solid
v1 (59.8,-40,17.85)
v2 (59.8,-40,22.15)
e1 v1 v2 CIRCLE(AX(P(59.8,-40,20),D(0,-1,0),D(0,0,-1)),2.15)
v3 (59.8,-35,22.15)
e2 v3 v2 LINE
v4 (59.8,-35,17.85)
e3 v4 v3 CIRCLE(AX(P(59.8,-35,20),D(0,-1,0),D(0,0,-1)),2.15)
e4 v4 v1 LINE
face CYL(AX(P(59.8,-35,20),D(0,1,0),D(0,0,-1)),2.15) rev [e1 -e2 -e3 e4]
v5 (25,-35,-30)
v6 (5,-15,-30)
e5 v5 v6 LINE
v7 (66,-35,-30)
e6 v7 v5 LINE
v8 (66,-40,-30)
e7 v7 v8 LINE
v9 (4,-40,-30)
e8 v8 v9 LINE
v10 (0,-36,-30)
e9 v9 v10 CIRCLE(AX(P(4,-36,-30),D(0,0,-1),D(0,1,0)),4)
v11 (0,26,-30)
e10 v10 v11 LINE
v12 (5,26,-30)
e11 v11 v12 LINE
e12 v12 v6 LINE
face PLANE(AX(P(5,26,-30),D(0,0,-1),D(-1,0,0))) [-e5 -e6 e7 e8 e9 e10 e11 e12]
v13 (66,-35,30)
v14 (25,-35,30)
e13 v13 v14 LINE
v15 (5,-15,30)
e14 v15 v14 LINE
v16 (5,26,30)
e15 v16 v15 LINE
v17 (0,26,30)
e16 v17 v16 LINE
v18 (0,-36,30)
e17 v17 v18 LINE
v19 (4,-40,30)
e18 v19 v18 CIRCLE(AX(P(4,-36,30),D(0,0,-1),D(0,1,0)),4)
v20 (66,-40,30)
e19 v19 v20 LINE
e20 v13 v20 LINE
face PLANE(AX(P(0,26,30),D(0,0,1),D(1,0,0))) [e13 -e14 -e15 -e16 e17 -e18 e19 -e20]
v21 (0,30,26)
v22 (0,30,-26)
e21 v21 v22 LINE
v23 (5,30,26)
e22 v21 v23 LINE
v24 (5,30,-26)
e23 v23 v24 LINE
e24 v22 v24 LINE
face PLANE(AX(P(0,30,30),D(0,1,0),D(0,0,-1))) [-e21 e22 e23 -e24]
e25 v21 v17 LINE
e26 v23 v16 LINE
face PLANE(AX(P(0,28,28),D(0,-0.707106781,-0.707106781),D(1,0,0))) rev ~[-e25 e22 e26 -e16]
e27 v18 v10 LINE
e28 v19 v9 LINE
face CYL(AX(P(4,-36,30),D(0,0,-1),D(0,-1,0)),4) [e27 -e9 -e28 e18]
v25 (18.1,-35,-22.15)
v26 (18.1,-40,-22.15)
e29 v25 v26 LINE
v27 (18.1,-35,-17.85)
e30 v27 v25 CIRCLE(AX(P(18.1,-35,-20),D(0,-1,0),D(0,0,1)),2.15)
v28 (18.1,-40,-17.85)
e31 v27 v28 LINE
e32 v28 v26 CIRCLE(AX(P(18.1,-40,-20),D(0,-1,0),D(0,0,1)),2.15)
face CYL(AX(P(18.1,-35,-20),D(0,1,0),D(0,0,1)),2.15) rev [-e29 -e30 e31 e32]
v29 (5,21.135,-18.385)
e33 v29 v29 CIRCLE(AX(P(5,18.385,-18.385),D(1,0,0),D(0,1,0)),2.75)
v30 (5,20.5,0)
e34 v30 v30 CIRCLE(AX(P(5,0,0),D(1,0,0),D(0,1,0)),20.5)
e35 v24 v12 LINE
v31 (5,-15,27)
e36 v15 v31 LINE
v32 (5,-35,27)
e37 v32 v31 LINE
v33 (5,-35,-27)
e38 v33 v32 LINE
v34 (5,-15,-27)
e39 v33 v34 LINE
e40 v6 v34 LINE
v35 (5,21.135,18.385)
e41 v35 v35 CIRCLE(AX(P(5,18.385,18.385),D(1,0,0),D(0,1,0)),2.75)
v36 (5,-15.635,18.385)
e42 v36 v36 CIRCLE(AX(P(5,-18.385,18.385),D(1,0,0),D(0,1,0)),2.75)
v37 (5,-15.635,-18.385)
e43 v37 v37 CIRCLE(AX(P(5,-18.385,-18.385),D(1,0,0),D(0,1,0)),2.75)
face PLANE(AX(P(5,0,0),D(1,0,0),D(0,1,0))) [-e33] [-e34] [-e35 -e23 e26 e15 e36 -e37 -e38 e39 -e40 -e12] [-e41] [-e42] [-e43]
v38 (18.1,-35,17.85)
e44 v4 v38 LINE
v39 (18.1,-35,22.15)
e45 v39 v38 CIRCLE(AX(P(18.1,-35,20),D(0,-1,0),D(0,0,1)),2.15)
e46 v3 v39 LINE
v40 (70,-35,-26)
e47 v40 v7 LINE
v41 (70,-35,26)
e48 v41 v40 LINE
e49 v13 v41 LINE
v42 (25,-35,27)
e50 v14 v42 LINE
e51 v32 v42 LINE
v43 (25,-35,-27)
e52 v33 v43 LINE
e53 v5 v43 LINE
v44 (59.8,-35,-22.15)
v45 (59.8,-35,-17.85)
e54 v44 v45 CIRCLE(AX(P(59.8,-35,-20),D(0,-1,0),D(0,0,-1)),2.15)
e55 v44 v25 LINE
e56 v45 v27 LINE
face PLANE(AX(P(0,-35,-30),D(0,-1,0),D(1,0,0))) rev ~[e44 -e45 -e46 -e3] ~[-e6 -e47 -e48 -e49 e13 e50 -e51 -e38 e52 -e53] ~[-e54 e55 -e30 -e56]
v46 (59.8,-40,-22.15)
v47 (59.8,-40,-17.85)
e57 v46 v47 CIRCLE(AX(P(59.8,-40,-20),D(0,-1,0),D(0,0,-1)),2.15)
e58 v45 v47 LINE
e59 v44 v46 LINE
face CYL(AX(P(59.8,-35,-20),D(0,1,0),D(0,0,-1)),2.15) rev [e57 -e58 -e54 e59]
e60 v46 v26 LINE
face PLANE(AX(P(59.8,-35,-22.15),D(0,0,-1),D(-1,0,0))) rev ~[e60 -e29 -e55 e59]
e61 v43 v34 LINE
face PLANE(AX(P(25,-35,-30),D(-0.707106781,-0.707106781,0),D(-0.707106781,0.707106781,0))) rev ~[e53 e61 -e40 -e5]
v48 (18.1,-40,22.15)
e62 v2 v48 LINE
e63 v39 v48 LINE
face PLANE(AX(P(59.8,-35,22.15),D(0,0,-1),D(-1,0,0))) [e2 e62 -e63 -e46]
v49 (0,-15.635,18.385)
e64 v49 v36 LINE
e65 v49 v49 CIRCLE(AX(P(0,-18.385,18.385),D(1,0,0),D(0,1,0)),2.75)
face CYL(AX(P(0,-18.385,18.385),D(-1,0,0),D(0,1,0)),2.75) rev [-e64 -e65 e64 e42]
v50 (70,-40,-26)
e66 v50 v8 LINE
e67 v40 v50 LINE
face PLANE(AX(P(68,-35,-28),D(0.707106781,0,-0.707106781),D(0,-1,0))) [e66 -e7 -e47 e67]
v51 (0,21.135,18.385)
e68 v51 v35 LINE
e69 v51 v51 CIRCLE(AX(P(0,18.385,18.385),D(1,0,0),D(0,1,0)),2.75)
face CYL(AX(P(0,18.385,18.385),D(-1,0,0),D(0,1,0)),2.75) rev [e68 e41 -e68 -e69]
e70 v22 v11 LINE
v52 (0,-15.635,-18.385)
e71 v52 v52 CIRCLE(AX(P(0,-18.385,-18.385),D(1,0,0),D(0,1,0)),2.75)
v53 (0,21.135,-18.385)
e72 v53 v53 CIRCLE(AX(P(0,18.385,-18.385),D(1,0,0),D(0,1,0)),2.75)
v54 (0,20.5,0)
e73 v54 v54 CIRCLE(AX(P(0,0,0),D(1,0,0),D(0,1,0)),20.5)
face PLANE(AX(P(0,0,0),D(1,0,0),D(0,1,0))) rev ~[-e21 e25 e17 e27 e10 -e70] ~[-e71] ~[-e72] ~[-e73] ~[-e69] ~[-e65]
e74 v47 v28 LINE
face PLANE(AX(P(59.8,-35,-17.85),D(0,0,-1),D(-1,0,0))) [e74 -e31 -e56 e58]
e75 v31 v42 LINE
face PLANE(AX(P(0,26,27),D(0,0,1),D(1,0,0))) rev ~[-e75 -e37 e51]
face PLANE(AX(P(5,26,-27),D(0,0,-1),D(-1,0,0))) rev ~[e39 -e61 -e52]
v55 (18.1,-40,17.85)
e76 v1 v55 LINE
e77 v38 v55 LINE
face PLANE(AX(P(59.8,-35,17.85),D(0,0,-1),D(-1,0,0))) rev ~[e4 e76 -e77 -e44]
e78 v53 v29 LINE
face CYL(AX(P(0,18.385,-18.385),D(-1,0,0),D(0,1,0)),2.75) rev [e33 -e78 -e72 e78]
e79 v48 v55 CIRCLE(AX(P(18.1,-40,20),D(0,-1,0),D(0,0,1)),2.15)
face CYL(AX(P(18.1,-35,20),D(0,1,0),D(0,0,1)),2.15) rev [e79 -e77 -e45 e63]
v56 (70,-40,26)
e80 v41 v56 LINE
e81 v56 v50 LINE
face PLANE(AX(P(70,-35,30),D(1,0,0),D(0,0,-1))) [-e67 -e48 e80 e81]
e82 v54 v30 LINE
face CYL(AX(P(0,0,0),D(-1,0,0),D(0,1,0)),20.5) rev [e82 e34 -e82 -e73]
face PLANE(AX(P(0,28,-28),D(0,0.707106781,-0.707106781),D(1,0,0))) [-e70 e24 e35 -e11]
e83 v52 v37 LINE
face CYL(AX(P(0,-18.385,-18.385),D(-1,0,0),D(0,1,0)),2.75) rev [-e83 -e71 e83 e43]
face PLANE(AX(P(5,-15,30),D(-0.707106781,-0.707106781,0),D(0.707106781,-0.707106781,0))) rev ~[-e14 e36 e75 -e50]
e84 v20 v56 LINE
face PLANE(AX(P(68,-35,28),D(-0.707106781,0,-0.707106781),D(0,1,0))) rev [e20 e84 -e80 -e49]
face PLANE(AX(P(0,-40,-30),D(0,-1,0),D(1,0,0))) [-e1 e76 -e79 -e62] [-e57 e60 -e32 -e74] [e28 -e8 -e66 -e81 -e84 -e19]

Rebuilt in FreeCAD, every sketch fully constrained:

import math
import FreeCAD as App
import Part
import Sketcher
Q = App.Units.Quantity


def edges_at(feature, points):
    """Names of the edges that pass closest to the given points."""
    edges = feature.Shape.Edges
    near = lambda p: min(range(len(edges)), key=lambda i: edges[i].distToShape(Part.Vertex(*p))[0])
    return sorted({f"Edge{near(p) + 1}" for p in points})


def add_polygon(sketch, points):
    """Adds a closed chain of lines whose ends are joined by coincident constraints."""
    first, n = sketch.GeometryCount, len(points)
    for a, b in zip(points, points[1:] + points[:1]):
        sketch.addGeometry(Part.LineSegment(App.Vector(*a, 0), App.Vector(*b, 0)), False)
    for i in range(n):
        sketch.addConstraint(Sketcher.Constraint("Coincident", first + i, 2, first + (i + 1) % n, 1))

doc = App.newDocument("Part")
body = doc.addObject("PartDesign::Body", "Body")

sketch1 = doc.addObject("Sketcher::SketchObject", "Sketch")
body.addObject(sketch1)
sketch1.AttachmentSupport = (doc.YZ_Plane, [""])
sketch1.MapMode = "FlatFace"
add_polygon(sketch1, [(30, -30), (30, 30), (-35, 30), (-35, -30)])
sketch1.addGeometry(Part.Circle(App.Vector(-18.385, -18.385, 0), App.Vector(0, 0, 1), 2.75), False)
sketch1.addGeometry(Part.Circle(App.Vector(18.385, -18.385, 0), App.Vector(0, 0, 1), 2.75), False)
sketch1.addGeometry(Part.Circle(App.Vector(-18.385, 18.385, 0), App.Vector(0, 0, 1), 2.75), False)
sketch1.addGeometry(Part.Circle(App.Vector(0, 0, 0), App.Vector(0, 0, 1), 20.5), False)
sketch1.addGeometry(Part.Circle(App.Vector(18.385, 18.385, 0), App.Vector(0, 0, 1), 2.75), False)
sketch1.addConstraint(Sketcher.Constraint("Vertical", 0))
sketch1.addConstraint(Sketcher.Constraint("Horizontal", 1))
sketch1.addConstraint(Sketcher.Constraint("Vertical", 2))
sketch1.addConstraint(Sketcher.Constraint("Horizontal", 3))
sketch1.addConstraint(Sketcher.Constraint("Coincident", 7, 3, -1, 1))
sketch1.addConstraint(Sketcher.Constraint("Equal", 4, 5))
sketch1.addConstraint(Sketcher.Constraint("Equal", 5, 6))
sketch1.addConstraint(Sketcher.Constraint("Equal", 6, 8))
sketch1.addConstraint(Sketcher.Constraint("Symmetric", 5, 3, 6, 3, -1, 1))
sketch1.addConstraint(Sketcher.Constraint("Symmetric", 4, 3, 8, 3, -1, 1))
sketch1.addConstraint(Sketcher.Constraint("Symmetric", 4, 3, 5, 3, -2))
sketch1.addConstraint(Sketcher.Constraint("Diameter", 7, Q("41 mm")))
sketch1.addConstraint(Sketcher.Constraint("Diameter", 4, Q("5.5 mm")))
sketch1.addConstraint(Sketcher.Constraint("DistanceX", 1, 2, 1, 1, Q("65 mm")))
sketch1.addConstraint(Sketcher.Constraint("DistanceY", 0, 1, 0, 2, Q("60 mm")))
sketch1.addConstraint(Sketcher.Constraint("DistanceX", -1, 1, 0, 2, Q("30 mm")))
sketch1.addConstraint(Sketcher.Constraint("DistanceY", -1, 1, 0, 2, Q("30 mm")))
sketch1.addConstraint(Sketcher.Constraint("DistanceX", 4, 3, 5, 3, Q("36.77 mm")))
sketch1.addConstraint(Sketcher.Constraint("DistanceY", 4, 3, 6, 3, Q("36.77 mm")))
pad1 = doc.addObject("PartDesign::Pad", "Pad")
body.addObject(pad1)
pad1.Profile = sketch1
pad1.Length = 5

sketch2 = doc.addObject("Sketcher::SketchObject", "Sketch001")
body.addObject(sketch2)
sketch2.AttachmentSupport = (doc.XZ_Plane, [""])
sketch2.MapMode = "FlatFace"
sketch2.AttachmentOffset = App.Placement(App.Vector(0, 0, 35), App.Rotation())
add_polygon(sketch2, [(70, 30), (0, 30), (0, -30), (70, -30)])
sketch2.addGeometry(Part.ArcOfCircle(Part.Circle(App.Vector(59.8, -20, 0), App.Vector(0, 0, 1), 2.15), math.radians(-90), math.radians(90)), False)
sketch2.addGeometry(Part.LineSegment(App.Vector(59.8, -22.15, 0), App.Vector(18.1, -22.15, 0)), False)
sketch2.addGeometry(Part.ArcOfCircle(Part.Circle(App.Vector(18.1, -20, 0), App.Vector(0, 0, 1), 2.15), math.radians(90), math.radians(270)), False)
sketch2.addGeometry(Part.LineSegment(App.Vector(18.1, -17.85, 0), App.Vector(59.8, -17.85, 0)), False)
sketch2.addGeometry(Part.ArcOfCircle(Part.Circle(App.Vector(59.8, 20, 0), App.Vector(0, 0, 1), 2.15), math.radians(-90), math.radians(90)), False)
sketch2.addGeometry(Part.LineSegment(App.Vector(59.8, 17.85, 0), App.Vector(18.1, 17.85, 0)), False)
sketch2.addGeometry(Part.ArcOfCircle(Part.Circle(App.Vector(18.1, 20, 0), App.Vector(0, 0, 1), 2.15), math.radians(90), math.radians(270)), False)
sketch2.addGeometry(Part.LineSegment(App.Vector(18.1, 22.15, 0), App.Vector(59.8, 22.15, 0)), False)
sketch2.addConstraint(Sketcher.Constraint("Tangent", 4, 1, 5, 1))
sketch2.addConstraint(Sketcher.Constraint("Tangent", 5, 2, 6, 2))
sketch2.addConstraint(Sketcher.Constraint("Tangent", 6, 1, 7, 1))
sketch2.addConstraint(Sketcher.Constraint("Tangent", 7, 2, 4, 2))
sketch2.addConstraint(Sketcher.Constraint("Tangent", 8, 1, 9, 1))
sketch2.addConstraint(Sketcher.Constraint("Tangent", 9, 2, 10, 2))
sketch2.addConstraint(Sketcher.Constraint("Tangent", 10, 1, 11, 1))
sketch2.addConstraint(Sketcher.Constraint("Tangent", 11, 2, 8, 2))
sketch2.addConstraint(Sketcher.Constraint("Horizontal", 0))
sketch2.addConstraint(Sketcher.Constraint("Vertical", 1))
sketch2.addConstraint(Sketcher.Constraint("Horizontal", 2))
sketch2.addConstraint(Sketcher.Constraint("Vertical", 3))
sketch2.addConstraint(Sketcher.Constraint("Horizontal", 5))
sketch2.addConstraint(Sketcher.Constraint("Horizontal", 7))
sketch2.addConstraint(Sketcher.Constraint("Horizontal", 9))
sketch2.addConstraint(Sketcher.Constraint("Horizontal", 11))
sketch2.addConstraint(Sketcher.Constraint("Equal", 6, 8))
sketch2.addConstraint(Sketcher.Constraint("Symmetric", 0, 2, 1, 2, -1, 1))
sketch2.addConstraint(Sketcher.Constraint("Symmetric", 4, 3, 8, 3, -1))
sketch2.addConstraint(Sketcher.Constraint("Vertical", 6, 3, 10, 3))
sketch2.addConstraint(Sketcher.Constraint("DistanceX", 0, 2, 0, 1, Q("70 mm")))
sketch2.addConstraint(Sketcher.Constraint("DistanceY", 1, 2, 1, 1, Q("60 mm")))
sketch2.addConstraint(Sketcher.Constraint("Radius", 4, Q("2.15 mm")))
sketch2.addConstraint(Sketcher.Constraint("DistanceX", 5, 2, 5, 1, Q("41.7 mm")))
sketch2.addConstraint(Sketcher.Constraint("DistanceY", 4, 3, -1, 1, Q("20 mm")))
sketch2.addConstraint(Sketcher.Constraint("DistanceX", -1, 1, 4, 3, Q("59.8 mm")))
pad2 = doc.addObject("PartDesign::Pad", "Pad001")
body.addObject(pad2)
pad2.Profile = sketch2
pad2.Length = 5
doc.recompute()

chamfer = doc.addObject("PartDesign::Chamfer", "Chamfer")
body.addObject(chamfer)
chamfer.Base = (pad2, edges_at(pad2, [(2.5, 30, -30)]))
chamfer.Size = 4
doc.recompute()

chamfer2 = doc.addObject("PartDesign::Chamfer", "Chamfer001")
body.addObject(chamfer2)
chamfer2.Base = (chamfer, edges_at(chamfer, [(2.5, 30, 30)]))
chamfer2.Size = 4
doc.recompute()

chamfer3 = doc.addObject("PartDesign::Chamfer", "Chamfer002")
body.addObject(chamfer3)
chamfer3.Base = (chamfer2, edges_at(chamfer2, [(70, -37.5, 30)]))
chamfer3.Size = 4
doc.recompute()

chamfer4 = doc.addObject("PartDesign::Chamfer", "Chamfer003")
body.addObject(chamfer4)
chamfer4.Base = (chamfer3, edges_at(chamfer3, [(70, -37.5, -30)]))
chamfer4.Size = 4
doc.recompute()

fillet = doc.addObject("PartDesign::Fillet", "Fillet")
body.addObject(fillet)
fillet.Base = (chamfer4, edges_at(chamfer4, [(0, -40, 0)]))
fillet.Radius = 4

sketch3 = doc.addObject("Sketcher::SketchObject", "Sketch002")
body.addObject(sketch3)
sketch3.AttachmentSupport = (doc.XY_Plane, [""])
sketch3.MapMode = "FlatFace"
sketch3.AttachmentOffset = App.Placement(App.Vector(0, 0, 30), App.Rotation())
add_polygon(sketch3, [(5, -15), (5, -35), (25, -35)])
sketch3.addConstraint(Sketcher.Constraint("Vertical", 0))
sketch3.addConstraint(Sketcher.Constraint("Horizontal", 1))
sketch3.addConstraint(Sketcher.Constraint("Equal", 1, 0))
sketch3.addConstraint(Sketcher.Constraint("DistanceX", 1, 1, 1, 2, Q("20 mm")))
sketch3.addConstraint(Sketcher.Constraint("DistanceX", -1, 1, 0, 2, Q("5 mm")))
sketch3.addConstraint(Sketcher.Constraint("DistanceY", 0, 2, -1, 1, Q("35 mm")))
pad3 = doc.addObject("PartDesign::Pad", "Pad002")
body.addObject(pad3)
pad3.Profile = sketch3
pad3.Length = 3
pad3.Reversed = True

sketch4 = doc.addObject("Sketcher::SketchObject", "Sketch003")
body.addObject(sketch4)
sketch4.AttachmentSupport = (doc.XY_Plane, [""])
sketch4.MapMode = "FlatFace"
sketch4.AttachmentOffset = App.Placement(App.Vector(0, 0, -30), App.Rotation())
add_polygon(sketch4, [(25, -35), (5, -35), (5, -15)])
sketch4.addConstraint(Sketcher.Constraint("Horizontal", 0))
sketch4.addConstraint(Sketcher.Constraint("Vertical", 1))
sketch4.addConstraint(Sketcher.Constraint("Equal", 0, 1))
sketch4.addConstraint(Sketcher.Constraint("DistanceX", 0, 2, 0, 1, Q("20 mm")))
sketch4.addConstraint(Sketcher.Constraint("DistanceX", -1, 1, 0, 2, Q("5 mm")))
sketch4.addConstraint(Sketcher.Constraint("DistanceY", 0, 2, -1, 1, Q("35 mm")))
pad4 = doc.addObject("PartDesign::Pad", "Pad003")
body.addObject(pad4)
pad4.Profile = sketch4
pad4.Length = 3

doc.recompute()
